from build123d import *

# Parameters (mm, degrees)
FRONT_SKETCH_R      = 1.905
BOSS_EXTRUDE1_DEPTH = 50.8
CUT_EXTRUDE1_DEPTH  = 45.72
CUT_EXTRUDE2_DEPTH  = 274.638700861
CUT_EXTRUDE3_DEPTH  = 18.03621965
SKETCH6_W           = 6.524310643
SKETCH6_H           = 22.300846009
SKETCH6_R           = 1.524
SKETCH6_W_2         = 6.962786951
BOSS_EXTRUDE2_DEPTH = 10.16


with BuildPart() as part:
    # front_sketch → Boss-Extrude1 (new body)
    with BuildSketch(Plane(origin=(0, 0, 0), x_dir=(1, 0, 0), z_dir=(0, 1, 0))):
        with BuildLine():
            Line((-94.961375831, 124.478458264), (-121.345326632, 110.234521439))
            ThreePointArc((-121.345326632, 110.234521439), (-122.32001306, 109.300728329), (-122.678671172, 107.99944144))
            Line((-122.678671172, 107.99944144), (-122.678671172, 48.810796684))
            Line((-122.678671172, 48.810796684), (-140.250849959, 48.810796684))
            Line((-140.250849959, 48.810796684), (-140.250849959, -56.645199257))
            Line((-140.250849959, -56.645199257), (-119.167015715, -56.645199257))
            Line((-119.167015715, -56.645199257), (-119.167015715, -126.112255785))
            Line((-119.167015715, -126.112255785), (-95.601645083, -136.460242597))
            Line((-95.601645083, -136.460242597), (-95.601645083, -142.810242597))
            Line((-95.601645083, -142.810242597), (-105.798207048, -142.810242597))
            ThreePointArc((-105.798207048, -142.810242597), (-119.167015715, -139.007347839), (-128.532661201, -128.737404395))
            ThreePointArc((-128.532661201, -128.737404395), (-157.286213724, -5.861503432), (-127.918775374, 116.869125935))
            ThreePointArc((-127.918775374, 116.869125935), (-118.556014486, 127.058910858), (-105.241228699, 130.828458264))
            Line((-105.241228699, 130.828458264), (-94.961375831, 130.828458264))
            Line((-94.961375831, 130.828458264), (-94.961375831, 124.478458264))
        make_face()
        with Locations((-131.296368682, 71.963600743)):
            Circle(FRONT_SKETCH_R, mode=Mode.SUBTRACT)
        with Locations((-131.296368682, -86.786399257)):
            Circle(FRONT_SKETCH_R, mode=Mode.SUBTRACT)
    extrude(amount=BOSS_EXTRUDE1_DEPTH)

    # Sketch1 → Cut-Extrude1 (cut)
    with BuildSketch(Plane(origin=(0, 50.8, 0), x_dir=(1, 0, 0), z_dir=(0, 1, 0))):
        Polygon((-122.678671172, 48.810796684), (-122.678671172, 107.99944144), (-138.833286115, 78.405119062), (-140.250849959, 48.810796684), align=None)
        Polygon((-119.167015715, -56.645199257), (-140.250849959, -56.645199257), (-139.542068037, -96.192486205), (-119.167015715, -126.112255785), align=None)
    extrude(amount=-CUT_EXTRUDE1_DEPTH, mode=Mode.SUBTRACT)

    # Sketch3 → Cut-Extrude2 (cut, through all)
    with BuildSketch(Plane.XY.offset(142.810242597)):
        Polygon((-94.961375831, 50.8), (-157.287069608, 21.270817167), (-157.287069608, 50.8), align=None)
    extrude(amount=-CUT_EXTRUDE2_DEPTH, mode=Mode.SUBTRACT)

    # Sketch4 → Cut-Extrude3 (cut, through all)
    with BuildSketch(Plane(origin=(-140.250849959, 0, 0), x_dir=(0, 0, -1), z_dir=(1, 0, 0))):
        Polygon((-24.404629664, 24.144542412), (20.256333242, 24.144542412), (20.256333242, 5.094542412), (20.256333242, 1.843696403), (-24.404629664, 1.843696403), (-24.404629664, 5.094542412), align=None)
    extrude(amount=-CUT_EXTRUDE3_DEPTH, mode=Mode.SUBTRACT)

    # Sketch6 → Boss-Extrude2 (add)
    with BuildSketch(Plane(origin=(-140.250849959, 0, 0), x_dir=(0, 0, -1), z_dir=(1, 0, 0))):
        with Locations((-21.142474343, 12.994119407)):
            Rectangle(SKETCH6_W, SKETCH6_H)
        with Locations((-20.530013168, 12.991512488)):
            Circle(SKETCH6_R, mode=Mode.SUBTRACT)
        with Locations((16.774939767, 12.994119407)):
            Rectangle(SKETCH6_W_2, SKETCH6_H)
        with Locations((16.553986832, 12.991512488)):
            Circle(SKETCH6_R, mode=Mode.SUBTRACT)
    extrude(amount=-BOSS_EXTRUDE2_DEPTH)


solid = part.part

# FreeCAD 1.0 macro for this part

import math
import FreeCAD as App
import Part
import Sketcher
from FreeCAD import Vector
Q = App.Units.Quantity

doc = App.newDocument("Part")
body = doc.addObject("PartDesign::Body", "Body")

sketch1 = body.newObject("Sketcher::SketchObject", "Sketch")
sketch1.AttachmentSupport = (doc.getObject("XZ_Plane"), [""])
sketch1.MapMode = "FlatFace"
sketch1.addGeometry([
    Part.LineSegment(Vector(-121.3, -110.2, 0), Vector(-95, -124.5, 0)),
    Part.LineSegment(Vector(-95, -124.5, 0), Vector(-95, -130.8, 0)),
    Part.LineSegment(Vector(-95, -130.8, 0), Vector(-105.2, -130.8, 0)),
    Part.ArcOfCircle(Part.Circle(Vector(-105.2, -105.4, 0), Vector(0, 0, 1), 25.4), math.radians(-153), math.radians(-90)),
    Part.ArcOfCircle(Part.Circle(Vector(116.7, 6.5, 0), Vector(0, 0, 1), 274), math.radians(154), math.radians(207)),
    Part.ArcOfCircle(Part.Circle(Vector(-105.8, 117.4, 0), Vector(0, 0, 1), 25.4), math.radians(90), math.radians(154)),
    Part.LineSegment(Vector(-105.8, 142.8, 0), Vector(-95.6, 142.8, 0)),
    Part.LineSegment(Vector(-95.6, 142.8, 0), Vector(-95.6, 136.5, 0)),
    Part.LineSegment(Vector(-95.6, 136.5, 0), Vector(-119.2, 126.1, 0)),
    Part.LineSegment(Vector(-119.2, 126.1, 0), Vector(-119.2, 56.6, 0)),
    Part.LineSegment(Vector(-119.2, 56.6, 0), Vector(-140.3, 56.6, 0)),
    Part.LineSegment(Vector(-140.3, 56.6, 0), Vector(-140.3, -48.8, 0)),
    Part.LineSegment(Vector(-140.3, -48.8, 0), Vector(-122.7, -48.8, 0)),
    Part.LineSegment(Vector(-122.7, -48.8, 0), Vector(-122.7, -108, 0)),
    Part.ArcOfCircle(Part.Circle(Vector(-120.1, -108, 0), Vector(0, 0, 1), 2.5), math.radians(180), math.radians(242)),
    Part.Circle(Vector(-131.3, 86.8, 0), Vector(0, 0, 1), 1.9),
    Part.Circle(Vector(-131.3, -72, 0), Vector(0, 0, 1), 1.9),
], False)
sketch1.addConstraint([
    Sketcher.Constraint("Coincident", 0, 2, 1, 1),
    Sketcher.Constraint("Coincident", 1, 2, 2, 1),
    Sketcher.Constraint("Tangent", 2, 2, 3, 2),
    Sketcher.Constraint("Tangent", 3, 1, 4, 2),
    Sketcher.Constraint("Tangent", 4, 1, 5, 2),
    Sketcher.Constraint("Tangent", 5, 1, 6, 1),
    Sketcher.Constraint("Coincident", 6, 2, 7, 1),
    Sketcher.Constraint("Coincident", 7, 2, 8, 1),
    Sketcher.Constraint("Coincident", 8, 2, 9, 1),
    Sketcher.Constraint("Coincident", 9, 2, 10, 1),
    Sketcher.Constraint("Coincident", 10, 2, 11, 1),
    Sketcher.Constraint("Coincident", 11, 2, 12, 1),
    Sketcher.Constraint("Coincident", 12, 2, 13, 1),
    Sketcher.Constraint("Tangent", 13, 2, 14, 1),
    Sketcher.Constraint("Tangent", 14, 2, 0, 1),
    Sketcher.Constraint("Vertical", 1),
    Sketcher.Constraint("Horizontal", 2),
    Sketcher.Constraint("Horizontal", 6),
    Sketcher.Constraint("Vertical", 7),
    Sketcher.Constraint("Vertical", 9),
    Sketcher.Constraint("Horizontal", 10),
    Sketcher.Constraint("Vertical", 11),
    Sketcher.Constraint("Horizontal", 12),
    Sketcher.Constraint("Vertical", 13),
    Sketcher.Constraint("Equal", 3, 5),
    Sketcher.Constraint("Equal", 15, 16),
    Sketcher.Constraint("Vertical", 15, 3, 16, 3),
    Sketcher.Constraint("Equal", 1, 7),
    Sketcher.Constraint("Radius", 3, Q("1 in")),
    Sketcher.Constraint("Radius", 14, Q("0.1 in")),
    Sketcher.Constraint("Diameter", 15, Q("0.15 in")),
    Sketcher.Constraint("DistanceY", 1, 2, 1, 1, Q("0.25 in")),
    Sketcher.Constraint("DistanceY", 16, 3, 15, 3, Q("6.25 in")),
    Sketcher.Constraint("Radius", 4, Q("274.000905 mm")),
    Sketcher.Constraint("DistanceY", 3, 1, 14, 3, Q("0.3492002 in")),
    Sketcher.Constraint("DistanceX", 6, 1, 6, 2, Q("10.196562 mm")),
    Sketcher.Constraint("DistanceX", 12, 1, 12, 2, Q("17.572179 mm")),
    Sketcher.Constraint("DistanceY", -1, 1, 15, 3, Q("86.786399 mm")),
    Sketcher.Constraint("DistanceY", -1, 1, 9, 2, Q("56.645199 mm")),
    Sketcher.Constraint("DistanceY", 3, 3, 5, 3, Q("222.838701 mm")),
    Sketcher.Constraint("DistanceY", 14, 3, 4, 3, Q("114.545799 mm")),
    Sketcher.Constraint("DistanceX", 3, 1, 0, 2, Q("32.9574 mm")),
    Sketcher.Constraint("Distance", 0, Q("29.983372 mm")),
    Sketcher.Constraint("Distance", 8, Q("25.737279 mm")),
    Sketcher.Constraint("DistanceX", 10, 2, 10, 1, Q("21.083834 mm")),
    Sketcher.Constraint("DistanceY", 9, 2, 9, 1, Q("69.467057 mm")),
    Sketcher.Constraint("DistanceY", 11, 2, 11, 1, Q("105.455996 mm")),
    Sketcher.Constraint("DistanceX", 3, 3, -1, 1, Q("105.241229 mm")),
    Sketcher.Constraint("DistanceX", 15, 3, -1, 1, Q("131.296369 mm")),
])
pad1 = body.newObject("PartDesign::Pad", "Pad")
pad1.Profile = sketch1
pad1.Length = Q("2 in")
pad1.Reversed = True

sketch2 = body.newObject("Sketcher::SketchObject", "Sketch001")
sketch2.AttachmentSupport = (doc.getObject("XZ_Plane"), [""])
sketch2.MapMode = "FlatFace"
sketch2.AttachmentOffset = App.Placement(Vector(0, 0, -2 * 25.4), App.Rotation())
sketch2.addGeometry([
    Part.LineSegment(Vector(-123, -49, 0), Vector(-123, -108, 0)),
    Part.LineSegment(Vector(-123, -108, 0), Vector(-139, -78, 0)),
    Part.LineSegment(Vector(-139, -78, 0), Vector(-140, -49, 0)),
    Part.LineSegment(Vector(-140, -49, 0), Vector(-123, -49, 0)),
    Part.LineSegment(Vector(-119, 57, 0), Vector(-140, 57, 0)),
    Part.LineSegment(Vector(-140, 57, 0), Vector(-140, 96, 0)),
    Part.LineSegment(Vector(-140, 96, 0), Vector(-119, 126, 0)),
    Part.LineSegment(Vector(-119, 126, 0), Vector(-119, 57, 0)),
], False)
sketch2.addConstraint([
    Sketcher.Constraint("Coincident", 0, 2, 1, 1),
    Sketcher.Constraint("Coincident", 1, 2, 2, 1),
    Sketcher.Constraint("Coincident", 2, 2, 3, 1),
    Sketcher.Constraint("Coincident", 3, 2, 0, 1),
    Sketcher.Constraint("Coincident", 4, 2, 5, 1),
    Sketcher.Constraint("Coincident", 5, 2, 6, 1),
    Sketcher.Constraint("Coincident", 6, 2, 7, 1),
    Sketcher.Constraint("Coincident", 7, 2, 4, 1),
    Sketcher.Constraint("Vertical", 0),
    Sketcher.Constraint("Horizontal", 3),
    Sketcher.Constraint("Horizontal", 4),
    Sketcher.Constraint("Vertical", 7),
    Sketcher.Constraint("Vertical", 2, 2, 4, 2),
    Sketcher.Constraint("Distance", 1, Q("33.716398 mm")),
    Sketcher.Constraint("DistanceX", 3, 1, 3, 2, Q("17.572179 mm")),
    Sketcher.Constraint("DistanceY", -1, 1, 4, 2, Q("56.645199 mm")),
    Sketcher.Constraint("DistanceX", 4, 2, 4, 1, Q("21.083834 mm")),
    Sketcher.Constraint("DistanceY", 0, 2, 0, 1, Q("59.188645 mm")),
    Sketcher.Constraint("DistanceY", 7, 2, 7, 1, Q("69.467057 mm")),
    Sketcher.Constraint("DistanceX", 0, 2, -1, 1, Q("122.678671 mm")),
    Sketcher.Constraint("DistanceY", 0, 2, -1, 1, Q("107.999441 mm")),
    Sketcher.Constraint("DistanceY", 1, 2, -1, 1, Q("78.405119 mm")),
    Sketcher.Constraint("DistanceX", 5, 2, -1, 1, Q("139.542068 mm")),
    Sketcher.Constraint("DistanceY", 5, 2, 6, 2, Q("29.91977 mm")),
])
pocket1 = body.newObject("PartDesign::Pocket", "Pocket")
pocket1.Profile = sketch2
pocket1.Length = Q("1.8 in")
pocket1.Reversed = True

sketch3 = body.newObject("Sketcher::SketchObject", "Sketch002")
sketch3.AttachmentSupport = (doc.getObject("XY_Plane"), [""])
sketch3.MapMode = "FlatFace"
sketch3.AttachmentOffset = App.Placement(Vector(0, 0, 142.810243), App.Rotation())
sketch3.addGeometry([
    Part.LineSegment(Vector(-157, 21, 0), Vector(-95, 51, 0)),
    Part.LineSegment(Vector(-95, 51, 0), Vector(-157, 51, 0)),
    Part.LineSegment(Vector(-157, 51, 0), Vector(-157, 21, 0)),
], False)
sketch3.addConstraint([
    Sketcher.Constraint("Coincident", 0, 2, 1, 1),
    Sketcher.Constraint("Coincident", 1, 2, 2, 1),
    Sketcher.Constraint("Coincident", 2, 2, 0, 1),
    Sketcher.Constraint("Horizontal", 1),
    Sketcher.Constraint("Vertical", 2),
    Sketcher.Constraint("DistanceY", -1, 1, 0, 2, Q("2 in")),
    Sketcher.Constraint("DistanceX", 1, 2, 1, 1, Q("62.325694 mm")),
    Sketcher.Constraint("DistanceY", 2, 2, 2, 1, Q("29.529183 mm")),
    Sketcher.Constraint("DistanceX", 1, 2, -1, 1, Q("157.28707 mm")),
])
pocket2 = body.newObject("PartDesign::Pocket", "Pocket001")
pocket2.Profile = sketch3
pocket2.Type = "ThroughAll"

sketch4 = body.newObject("Sketcher::SketchObject", "Sketch003")
sketch4.AttachmentSupport = (doc.getObject("YZ_Plane"), [""])
sketch4.MapMode = "FlatFace"
sketch4.AttachmentOffset = App.Placement(Vector(0, 0, -140.25085), App.Rotation())
sketch4.addGeometry([
    Part.LineSegment(Vector(24, -20, 0), Vector(24, 24, 0)),
    Part.LineSegment(Vector(24, 24, 0), Vector(2, 24, 0)),
    Part.LineSegment(Vector(2, 24, 0), Vector(2, -20, 0)),
    Part.LineSegment(Vector(2, -20, 0), Vector(24, -20, 0)),
], False)
sketch4.addConstraint([
    Sketcher.Constraint("Coincident", 0, 2, 1, 1),
    Sketcher.Constraint("Coincident", 1, 2, 2, 1),
    Sketcher.Constraint("Coincident", 2, 2, 3, 1),
    Sketcher.Constraint("Coincident", 3, 2, 0, 1),
    Sketcher.Constraint("Vertical", 0),
    Sketcher.Constraint("Horizontal", 1),
    Sketcher.Constraint("Vertical", 2),
    Sketcher.Constraint("Horizontal", 3),
    Sketcher.Constraint("DistanceX", 1, 2, 1, 1, Q("22.300846 mm")),
    Sketcher.Constraint("DistanceY", 0, 1, 0, 2, Q("44.660963 mm")),
    Sketcher.Constraint("DistanceY", -1, 1, 0, 2, Q("24.40463 mm")),
    Sketcher.Constraint("DistanceX", -1, 1, 0, 2, Q("24.144542 mm")),
])
pocket3 = body.newObject("PartDesign::Pocket", "Pocket002")
pocket3.Profile = sketch4
pocket3.Type = "ThroughAll"

sketch5 = body.newObject("Sketcher::SketchObject", "Sketch004")
sketch5.AttachmentSupport = (doc.getObject("YZ_Plane"), [""])
sketch5.MapMode = "FlatFace"
sketch5.AttachmentOffset = App.Placement(Vector(0, 0, -140.25085), App.Rotation())
sketch5.addGeometry([
    Part.LineSegment(Vector(24.1, 24.4, 0), Vector(1.8, 24.4, 0)),
    Part.LineSegment(Vector(1.8, 24.4, 0), Vector(1.8, 17.9, 0)),
    Part.LineSegment(Vector(1.8, 17.9, 0), Vector(24.1, 17.9, 0)),
    Part.LineSegment(Vector(24.1, 17.9, 0), Vector(24.1, 24.4, 0)),
    Part.Circle(Vector(13, 20.5, 0), Vector(0, 0, 1), 1.5),
    Part.LineSegment(Vector(24.1, -13.3, 0), Vector(1.8, -13.3, 0)),
    Part.LineSegment(Vector(1.8, -13.3, 0), Vector(1.8, -20.3, 0)),
    Part.LineSegment(Vector(1.8, -20.3, 0), Vector(24.1, -20.3, 0)),
    Part.LineSegment(Vector(24.1, -20.3, 0), Vector(24.1, -13.3, 0)),
    Part.Circle(Vector(13, -16.6, 0), Vector(0, 0, 1), 1.5),
], False)
sketch5.addConstraint([
    Sketcher.Constraint("Coincident", 0, 2, 1, 1),
    Sketcher.Constraint("Coincident", 1, 2, 2, 1),
    Sketcher.Constraint("Coincident", 2, 2, 3, 1),
    Sketcher.Constraint("Coincident", 3, 2, 0, 1),
    Sketcher.Constraint("Coincident", 5, 2, 6, 1),
    Sketcher.Constraint("Coincident", 6, 2, 7, 1),
    Sketcher.Constraint("Coincident", 7, 2, 8, 1),
    Sketcher.Constraint("Coincident", 8, 2, 5, 1),
    Sketcher.Constraint("Horizontal", 0),
    Sketcher.Constraint("Vertical", 1),
    Sketcher.Constraint("Horizontal", 2),
    Sketcher.Constraint("Vertical", 3),
    Sketcher.Constraint("Horizontal", 5),
    Sketcher.Constraint("Vertical", 6),
    Sketcher.Constraint("Horizontal", 7),
    Sketcher.Constraint("Vertical", 8),
    Sketcher.Constraint("Equal", 4, 9),
    Sketcher.Constraint("Vertical", 4, 3, 9, 3),
    Sketcher.Constraint("Vertical", 1, 2, 5, 2),
    Sketcher.Constraint("Vertical", 3, 2, 7, 2),
    Sketcher.Constraint("Diameter", 4, Q("0.12 in")),
    Sketcher.Constraint("DistanceY", 9, 3, 4, 3, Q("1.46 in")),
    Sketcher.Constraint("DistanceY", 1, 2, 1, 1, Q("6.524311 mm")),
    Sketcher.Constraint("DistanceX", 0, 2, 0, 1, Q("22.300846 mm")),
    Sketcher.Constraint("DistanceY", 6, 2, 6, 1, Q("6.962787 mm")),
    Sketcher.Constraint("DistanceY", -1, 1, 0, 2, Q("24.40463 mm")),
    Sketcher.Constraint("DistanceX", 4, 3, 2, 2, Q("11.15303 mm")),
    Sketcher.Constraint("DistanceY", 9, 3, 5, 2, Q("3.260441 mm")),
    Sketcher.Constraint("DistanceX", -1, 1, 4, 3, Q("12.991512 mm")),
    Sketcher.Constraint("DistanceY", -1, 1, 4, 3, Q("20.530013 mm")),
])
pad2 = body.newObject("PartDesign::Pad", "Pad001")
pad2.Profile = sketch5
pad2.Length = Q("0.4 in")
pad2.Reversed = True

doc.recompute()
